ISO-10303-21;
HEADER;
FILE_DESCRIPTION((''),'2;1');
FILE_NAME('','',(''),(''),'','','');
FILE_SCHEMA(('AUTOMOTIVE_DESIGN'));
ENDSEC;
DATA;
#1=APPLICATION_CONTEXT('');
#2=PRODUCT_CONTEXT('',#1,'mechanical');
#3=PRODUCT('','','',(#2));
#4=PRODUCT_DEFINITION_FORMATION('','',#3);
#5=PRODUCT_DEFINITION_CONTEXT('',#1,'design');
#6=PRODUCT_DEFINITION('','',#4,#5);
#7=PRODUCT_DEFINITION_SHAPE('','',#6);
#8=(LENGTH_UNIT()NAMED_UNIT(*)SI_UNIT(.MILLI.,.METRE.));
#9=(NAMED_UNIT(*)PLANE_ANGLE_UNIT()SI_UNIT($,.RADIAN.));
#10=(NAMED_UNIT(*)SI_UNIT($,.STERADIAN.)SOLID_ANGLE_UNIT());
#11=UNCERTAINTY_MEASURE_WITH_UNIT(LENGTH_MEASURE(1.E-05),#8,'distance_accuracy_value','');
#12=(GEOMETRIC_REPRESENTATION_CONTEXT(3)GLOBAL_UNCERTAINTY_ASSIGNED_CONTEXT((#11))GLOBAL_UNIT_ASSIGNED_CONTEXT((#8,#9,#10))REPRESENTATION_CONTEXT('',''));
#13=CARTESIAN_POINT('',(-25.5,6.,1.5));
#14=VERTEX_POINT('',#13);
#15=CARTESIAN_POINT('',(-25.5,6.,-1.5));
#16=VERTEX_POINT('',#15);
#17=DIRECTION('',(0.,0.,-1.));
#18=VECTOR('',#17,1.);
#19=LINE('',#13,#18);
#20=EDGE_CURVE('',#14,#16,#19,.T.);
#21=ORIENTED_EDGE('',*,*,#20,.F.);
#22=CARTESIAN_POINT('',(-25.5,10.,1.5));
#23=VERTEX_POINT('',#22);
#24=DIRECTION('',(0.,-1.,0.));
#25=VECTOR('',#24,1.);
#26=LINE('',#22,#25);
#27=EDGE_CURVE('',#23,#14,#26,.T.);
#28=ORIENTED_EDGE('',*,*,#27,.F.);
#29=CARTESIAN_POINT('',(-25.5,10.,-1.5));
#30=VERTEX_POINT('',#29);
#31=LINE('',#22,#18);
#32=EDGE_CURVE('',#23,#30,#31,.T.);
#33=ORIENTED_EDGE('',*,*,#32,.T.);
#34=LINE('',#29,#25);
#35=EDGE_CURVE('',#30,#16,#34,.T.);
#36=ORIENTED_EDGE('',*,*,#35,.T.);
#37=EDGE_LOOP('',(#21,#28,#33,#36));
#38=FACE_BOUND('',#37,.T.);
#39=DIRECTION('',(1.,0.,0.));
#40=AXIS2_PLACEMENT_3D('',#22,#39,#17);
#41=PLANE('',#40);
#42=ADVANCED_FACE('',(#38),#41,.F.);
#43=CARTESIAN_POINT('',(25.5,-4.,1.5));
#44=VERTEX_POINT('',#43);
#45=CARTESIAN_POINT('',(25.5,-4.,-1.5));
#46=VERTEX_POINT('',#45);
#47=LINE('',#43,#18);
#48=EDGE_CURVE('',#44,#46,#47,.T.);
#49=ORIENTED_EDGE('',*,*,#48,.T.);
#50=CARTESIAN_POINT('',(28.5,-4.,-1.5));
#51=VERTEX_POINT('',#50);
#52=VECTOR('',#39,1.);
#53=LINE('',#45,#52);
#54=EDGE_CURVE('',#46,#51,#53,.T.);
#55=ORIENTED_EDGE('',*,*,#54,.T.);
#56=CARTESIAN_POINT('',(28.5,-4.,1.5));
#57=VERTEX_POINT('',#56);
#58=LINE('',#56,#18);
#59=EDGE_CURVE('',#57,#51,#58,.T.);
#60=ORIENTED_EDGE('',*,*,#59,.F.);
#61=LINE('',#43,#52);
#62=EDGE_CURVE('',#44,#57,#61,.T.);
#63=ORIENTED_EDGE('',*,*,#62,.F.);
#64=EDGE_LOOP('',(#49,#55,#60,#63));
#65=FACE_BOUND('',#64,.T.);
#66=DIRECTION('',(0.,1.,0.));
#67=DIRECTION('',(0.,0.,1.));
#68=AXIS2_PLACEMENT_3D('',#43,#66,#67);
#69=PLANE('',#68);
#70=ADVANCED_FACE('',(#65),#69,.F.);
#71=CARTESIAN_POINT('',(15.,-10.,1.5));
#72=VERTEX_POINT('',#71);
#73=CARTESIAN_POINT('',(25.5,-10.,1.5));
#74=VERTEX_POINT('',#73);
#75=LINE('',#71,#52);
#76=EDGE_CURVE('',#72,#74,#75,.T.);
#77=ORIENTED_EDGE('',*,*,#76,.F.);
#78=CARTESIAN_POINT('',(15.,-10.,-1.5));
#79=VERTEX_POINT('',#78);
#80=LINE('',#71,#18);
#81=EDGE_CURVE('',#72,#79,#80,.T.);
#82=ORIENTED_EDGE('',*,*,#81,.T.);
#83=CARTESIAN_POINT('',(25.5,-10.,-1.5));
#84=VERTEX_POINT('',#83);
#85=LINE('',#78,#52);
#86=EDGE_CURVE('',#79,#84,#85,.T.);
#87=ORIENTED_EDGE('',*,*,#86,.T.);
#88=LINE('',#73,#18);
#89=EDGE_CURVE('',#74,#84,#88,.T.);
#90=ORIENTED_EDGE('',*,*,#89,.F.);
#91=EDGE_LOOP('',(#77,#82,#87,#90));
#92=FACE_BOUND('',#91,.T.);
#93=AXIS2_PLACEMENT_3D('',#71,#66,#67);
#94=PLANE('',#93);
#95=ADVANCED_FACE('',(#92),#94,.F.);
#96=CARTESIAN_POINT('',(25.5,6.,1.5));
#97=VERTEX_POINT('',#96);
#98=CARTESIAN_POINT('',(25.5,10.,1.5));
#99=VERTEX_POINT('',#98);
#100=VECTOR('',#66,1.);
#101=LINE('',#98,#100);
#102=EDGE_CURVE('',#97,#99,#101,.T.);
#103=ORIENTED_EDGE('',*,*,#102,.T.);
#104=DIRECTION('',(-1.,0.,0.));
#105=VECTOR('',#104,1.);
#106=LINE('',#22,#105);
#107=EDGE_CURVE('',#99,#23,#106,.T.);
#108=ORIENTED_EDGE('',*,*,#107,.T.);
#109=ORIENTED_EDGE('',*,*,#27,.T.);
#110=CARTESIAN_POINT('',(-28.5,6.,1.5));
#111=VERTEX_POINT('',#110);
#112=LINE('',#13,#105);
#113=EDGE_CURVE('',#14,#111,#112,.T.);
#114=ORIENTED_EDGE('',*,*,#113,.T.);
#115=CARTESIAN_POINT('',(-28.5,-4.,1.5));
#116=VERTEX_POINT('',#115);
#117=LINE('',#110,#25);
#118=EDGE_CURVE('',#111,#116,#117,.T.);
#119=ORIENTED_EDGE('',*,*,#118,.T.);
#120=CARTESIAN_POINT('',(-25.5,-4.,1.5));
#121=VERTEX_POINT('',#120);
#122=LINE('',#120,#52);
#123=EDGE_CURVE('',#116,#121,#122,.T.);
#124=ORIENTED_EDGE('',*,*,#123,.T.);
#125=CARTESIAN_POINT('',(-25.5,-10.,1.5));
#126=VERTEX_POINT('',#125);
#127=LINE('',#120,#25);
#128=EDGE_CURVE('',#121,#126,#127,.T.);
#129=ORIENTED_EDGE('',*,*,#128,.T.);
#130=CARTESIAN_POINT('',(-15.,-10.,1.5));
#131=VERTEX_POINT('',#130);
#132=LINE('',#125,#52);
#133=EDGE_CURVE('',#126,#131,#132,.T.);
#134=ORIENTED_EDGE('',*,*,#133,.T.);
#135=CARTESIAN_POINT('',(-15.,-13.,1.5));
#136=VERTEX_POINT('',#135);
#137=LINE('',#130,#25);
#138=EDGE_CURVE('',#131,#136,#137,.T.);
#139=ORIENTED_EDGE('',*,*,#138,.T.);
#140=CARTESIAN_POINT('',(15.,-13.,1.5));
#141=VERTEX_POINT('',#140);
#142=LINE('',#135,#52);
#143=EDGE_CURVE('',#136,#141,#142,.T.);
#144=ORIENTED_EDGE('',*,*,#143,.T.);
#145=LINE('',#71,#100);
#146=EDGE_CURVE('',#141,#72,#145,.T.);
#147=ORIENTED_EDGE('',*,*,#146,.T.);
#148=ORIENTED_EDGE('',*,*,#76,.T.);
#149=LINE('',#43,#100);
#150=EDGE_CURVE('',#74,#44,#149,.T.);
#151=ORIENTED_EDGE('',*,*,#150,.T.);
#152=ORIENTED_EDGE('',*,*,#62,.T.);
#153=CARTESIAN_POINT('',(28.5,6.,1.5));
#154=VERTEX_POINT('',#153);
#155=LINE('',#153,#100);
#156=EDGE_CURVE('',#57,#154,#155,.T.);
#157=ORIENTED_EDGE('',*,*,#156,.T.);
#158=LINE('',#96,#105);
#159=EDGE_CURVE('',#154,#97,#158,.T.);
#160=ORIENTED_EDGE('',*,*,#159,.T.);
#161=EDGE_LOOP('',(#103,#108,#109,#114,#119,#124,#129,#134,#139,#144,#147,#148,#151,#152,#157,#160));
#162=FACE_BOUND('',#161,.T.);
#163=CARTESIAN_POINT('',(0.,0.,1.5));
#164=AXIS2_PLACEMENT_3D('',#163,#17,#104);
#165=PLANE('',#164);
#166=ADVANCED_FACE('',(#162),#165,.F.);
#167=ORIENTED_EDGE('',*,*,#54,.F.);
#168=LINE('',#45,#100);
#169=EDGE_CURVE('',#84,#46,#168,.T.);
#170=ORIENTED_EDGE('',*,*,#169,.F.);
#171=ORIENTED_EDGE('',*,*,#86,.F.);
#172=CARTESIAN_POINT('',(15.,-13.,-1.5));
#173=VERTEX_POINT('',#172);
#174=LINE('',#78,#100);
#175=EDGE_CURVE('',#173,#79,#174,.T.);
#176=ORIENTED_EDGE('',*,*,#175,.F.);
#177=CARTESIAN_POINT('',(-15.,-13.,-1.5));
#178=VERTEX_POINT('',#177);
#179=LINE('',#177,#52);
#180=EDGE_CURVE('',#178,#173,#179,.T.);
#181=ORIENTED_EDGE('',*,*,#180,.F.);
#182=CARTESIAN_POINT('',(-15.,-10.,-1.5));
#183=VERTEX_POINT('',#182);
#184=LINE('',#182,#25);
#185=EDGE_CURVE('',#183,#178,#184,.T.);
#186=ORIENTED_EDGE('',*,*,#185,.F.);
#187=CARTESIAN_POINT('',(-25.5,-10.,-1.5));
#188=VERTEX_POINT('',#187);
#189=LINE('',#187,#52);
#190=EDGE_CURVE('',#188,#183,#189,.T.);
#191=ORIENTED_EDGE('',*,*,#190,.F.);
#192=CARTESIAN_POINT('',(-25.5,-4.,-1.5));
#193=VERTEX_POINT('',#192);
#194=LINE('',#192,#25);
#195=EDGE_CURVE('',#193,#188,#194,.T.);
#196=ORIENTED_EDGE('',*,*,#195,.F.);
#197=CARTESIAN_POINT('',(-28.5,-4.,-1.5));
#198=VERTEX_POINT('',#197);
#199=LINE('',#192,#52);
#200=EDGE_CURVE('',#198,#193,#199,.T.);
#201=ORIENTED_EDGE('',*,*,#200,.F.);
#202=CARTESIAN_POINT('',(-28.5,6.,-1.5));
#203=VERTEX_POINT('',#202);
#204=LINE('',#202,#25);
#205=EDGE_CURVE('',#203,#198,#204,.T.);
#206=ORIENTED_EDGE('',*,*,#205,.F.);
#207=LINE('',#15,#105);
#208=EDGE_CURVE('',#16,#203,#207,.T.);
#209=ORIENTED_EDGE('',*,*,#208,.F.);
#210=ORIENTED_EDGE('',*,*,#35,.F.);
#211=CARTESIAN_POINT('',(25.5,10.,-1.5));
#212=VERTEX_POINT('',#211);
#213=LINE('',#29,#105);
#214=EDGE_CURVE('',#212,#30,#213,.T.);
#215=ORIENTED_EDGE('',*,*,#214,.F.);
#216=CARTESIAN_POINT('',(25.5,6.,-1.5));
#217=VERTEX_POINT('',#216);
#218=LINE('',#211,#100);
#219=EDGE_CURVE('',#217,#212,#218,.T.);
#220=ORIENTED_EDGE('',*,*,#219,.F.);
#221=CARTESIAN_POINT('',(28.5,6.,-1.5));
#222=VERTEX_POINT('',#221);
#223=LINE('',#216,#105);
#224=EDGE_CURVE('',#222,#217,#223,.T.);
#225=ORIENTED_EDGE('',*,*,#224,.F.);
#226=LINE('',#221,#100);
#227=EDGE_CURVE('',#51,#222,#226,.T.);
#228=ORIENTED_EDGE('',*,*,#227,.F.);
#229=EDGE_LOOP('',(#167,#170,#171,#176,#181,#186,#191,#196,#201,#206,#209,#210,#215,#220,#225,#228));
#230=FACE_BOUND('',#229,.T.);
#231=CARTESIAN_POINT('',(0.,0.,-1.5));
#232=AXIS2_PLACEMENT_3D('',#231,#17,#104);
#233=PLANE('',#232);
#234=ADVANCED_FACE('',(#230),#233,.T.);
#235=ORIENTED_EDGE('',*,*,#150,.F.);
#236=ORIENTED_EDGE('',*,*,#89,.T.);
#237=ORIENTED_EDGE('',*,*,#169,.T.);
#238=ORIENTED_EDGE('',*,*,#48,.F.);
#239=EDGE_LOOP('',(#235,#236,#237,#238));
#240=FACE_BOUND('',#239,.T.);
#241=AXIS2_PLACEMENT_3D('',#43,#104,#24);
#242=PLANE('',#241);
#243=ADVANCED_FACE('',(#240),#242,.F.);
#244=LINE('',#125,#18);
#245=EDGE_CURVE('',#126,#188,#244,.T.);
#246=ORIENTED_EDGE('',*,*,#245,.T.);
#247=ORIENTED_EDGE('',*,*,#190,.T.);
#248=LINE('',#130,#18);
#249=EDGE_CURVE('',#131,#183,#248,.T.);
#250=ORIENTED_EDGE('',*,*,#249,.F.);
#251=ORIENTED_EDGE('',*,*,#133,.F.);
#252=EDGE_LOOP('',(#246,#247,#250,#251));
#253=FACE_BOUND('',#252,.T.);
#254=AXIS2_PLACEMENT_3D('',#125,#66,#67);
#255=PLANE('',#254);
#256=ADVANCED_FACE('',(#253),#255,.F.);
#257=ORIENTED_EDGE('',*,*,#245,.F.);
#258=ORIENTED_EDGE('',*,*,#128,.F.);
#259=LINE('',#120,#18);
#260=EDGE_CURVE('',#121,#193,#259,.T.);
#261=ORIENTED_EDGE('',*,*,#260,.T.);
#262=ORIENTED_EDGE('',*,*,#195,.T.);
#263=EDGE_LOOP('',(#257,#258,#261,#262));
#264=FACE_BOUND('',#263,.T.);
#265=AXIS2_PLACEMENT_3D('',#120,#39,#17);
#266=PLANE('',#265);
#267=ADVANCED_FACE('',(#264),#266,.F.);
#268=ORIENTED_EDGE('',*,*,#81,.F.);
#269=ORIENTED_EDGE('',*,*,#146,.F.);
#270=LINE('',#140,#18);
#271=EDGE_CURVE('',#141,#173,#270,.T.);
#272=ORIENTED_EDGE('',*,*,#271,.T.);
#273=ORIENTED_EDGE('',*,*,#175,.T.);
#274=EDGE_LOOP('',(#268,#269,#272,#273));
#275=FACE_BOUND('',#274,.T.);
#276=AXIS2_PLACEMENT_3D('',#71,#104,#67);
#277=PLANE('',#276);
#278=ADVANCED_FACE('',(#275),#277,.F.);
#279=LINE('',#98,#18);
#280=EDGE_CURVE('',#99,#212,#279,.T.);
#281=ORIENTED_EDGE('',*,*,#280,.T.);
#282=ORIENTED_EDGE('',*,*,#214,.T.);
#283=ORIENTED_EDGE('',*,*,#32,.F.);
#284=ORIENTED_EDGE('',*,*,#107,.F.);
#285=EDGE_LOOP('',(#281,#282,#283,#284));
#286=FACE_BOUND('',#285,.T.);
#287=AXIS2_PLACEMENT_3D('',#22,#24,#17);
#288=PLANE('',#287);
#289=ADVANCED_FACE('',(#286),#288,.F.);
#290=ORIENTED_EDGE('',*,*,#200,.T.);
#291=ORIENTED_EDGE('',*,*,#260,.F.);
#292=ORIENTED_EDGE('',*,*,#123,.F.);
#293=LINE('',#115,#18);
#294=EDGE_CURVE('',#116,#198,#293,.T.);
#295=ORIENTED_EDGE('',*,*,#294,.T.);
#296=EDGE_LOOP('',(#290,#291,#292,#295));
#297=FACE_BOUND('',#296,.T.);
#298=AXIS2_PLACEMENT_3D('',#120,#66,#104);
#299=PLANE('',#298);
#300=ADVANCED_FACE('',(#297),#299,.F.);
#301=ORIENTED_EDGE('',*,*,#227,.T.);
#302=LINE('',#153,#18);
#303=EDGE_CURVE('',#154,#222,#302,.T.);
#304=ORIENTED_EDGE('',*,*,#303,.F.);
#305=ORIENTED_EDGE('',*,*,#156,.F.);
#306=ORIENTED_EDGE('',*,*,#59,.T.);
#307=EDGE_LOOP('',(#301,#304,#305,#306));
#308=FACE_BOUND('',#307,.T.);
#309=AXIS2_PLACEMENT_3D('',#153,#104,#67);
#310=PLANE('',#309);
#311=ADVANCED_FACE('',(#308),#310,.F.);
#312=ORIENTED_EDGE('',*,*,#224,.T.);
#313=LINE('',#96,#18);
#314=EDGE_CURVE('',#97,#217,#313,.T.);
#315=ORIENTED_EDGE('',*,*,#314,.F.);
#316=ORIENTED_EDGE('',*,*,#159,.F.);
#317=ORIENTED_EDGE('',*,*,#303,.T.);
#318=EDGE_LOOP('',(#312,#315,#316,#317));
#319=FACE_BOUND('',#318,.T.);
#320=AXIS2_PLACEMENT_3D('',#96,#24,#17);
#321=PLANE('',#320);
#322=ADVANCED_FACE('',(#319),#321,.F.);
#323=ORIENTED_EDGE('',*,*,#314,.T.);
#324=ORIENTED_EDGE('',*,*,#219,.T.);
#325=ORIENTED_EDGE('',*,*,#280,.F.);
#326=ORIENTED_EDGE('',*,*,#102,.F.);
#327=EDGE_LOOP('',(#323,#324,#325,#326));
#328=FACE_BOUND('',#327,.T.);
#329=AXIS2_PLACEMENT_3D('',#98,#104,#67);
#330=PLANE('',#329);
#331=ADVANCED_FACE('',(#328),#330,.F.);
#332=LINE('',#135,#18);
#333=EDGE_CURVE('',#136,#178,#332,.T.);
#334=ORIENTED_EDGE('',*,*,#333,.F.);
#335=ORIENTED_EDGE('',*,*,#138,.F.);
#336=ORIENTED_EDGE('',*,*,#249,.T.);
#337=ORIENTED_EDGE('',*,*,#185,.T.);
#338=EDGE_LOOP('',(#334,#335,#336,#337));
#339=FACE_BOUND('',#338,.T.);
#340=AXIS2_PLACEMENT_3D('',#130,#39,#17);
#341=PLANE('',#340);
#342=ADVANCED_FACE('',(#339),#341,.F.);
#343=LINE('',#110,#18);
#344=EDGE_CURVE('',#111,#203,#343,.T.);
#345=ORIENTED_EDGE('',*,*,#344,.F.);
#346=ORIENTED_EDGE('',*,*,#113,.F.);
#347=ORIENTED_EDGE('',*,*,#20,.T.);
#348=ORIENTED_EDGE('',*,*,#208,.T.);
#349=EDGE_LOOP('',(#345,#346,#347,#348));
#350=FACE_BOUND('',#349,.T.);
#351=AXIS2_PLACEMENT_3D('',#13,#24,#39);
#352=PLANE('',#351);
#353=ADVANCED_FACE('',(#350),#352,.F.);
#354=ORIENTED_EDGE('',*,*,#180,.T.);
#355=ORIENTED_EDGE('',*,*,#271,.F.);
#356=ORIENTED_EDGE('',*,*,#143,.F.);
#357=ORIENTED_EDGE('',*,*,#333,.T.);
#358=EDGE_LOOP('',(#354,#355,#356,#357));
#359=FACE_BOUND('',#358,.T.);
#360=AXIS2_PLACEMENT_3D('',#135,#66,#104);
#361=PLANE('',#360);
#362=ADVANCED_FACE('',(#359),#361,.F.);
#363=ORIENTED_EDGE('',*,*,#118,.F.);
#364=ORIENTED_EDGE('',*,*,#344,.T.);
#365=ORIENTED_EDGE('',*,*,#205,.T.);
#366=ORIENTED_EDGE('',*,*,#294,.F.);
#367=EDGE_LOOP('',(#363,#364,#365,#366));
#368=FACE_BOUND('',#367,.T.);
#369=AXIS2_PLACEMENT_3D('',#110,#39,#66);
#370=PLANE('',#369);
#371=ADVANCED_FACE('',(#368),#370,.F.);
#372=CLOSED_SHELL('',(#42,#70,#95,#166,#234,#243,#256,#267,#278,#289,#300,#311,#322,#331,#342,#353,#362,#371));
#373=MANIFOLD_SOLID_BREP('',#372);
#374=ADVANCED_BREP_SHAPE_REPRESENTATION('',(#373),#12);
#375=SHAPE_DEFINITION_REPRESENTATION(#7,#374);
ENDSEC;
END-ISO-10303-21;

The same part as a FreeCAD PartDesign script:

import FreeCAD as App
import Part
import Sketcher
Q = App.Units.Quantity


def add_polygon(sketch, points):
    """Adds a closed chain of lines whose ends are joined by coincident constraints."""
    first, n = sketch.GeometryCount, len(points)
    for a, b in zip(points, points[1:] + points[:1]):
        sketch.addGeometry(Part.LineSegment(App.Vector(*a, 0), App.Vector(*b, 0)), False)
    for i in range(n):
        sketch.addConstraint(Sketcher.Constraint("Coincident", first + i, 2, first + (i + 1) % n, 1))

doc = App.newDocument("Part")
params = doc.addObject("Spreadsheet::Sheet", "Params")
for row, (alias, value) in enumerate([
    ("sketch1_width", "30 mm"),
    ("sketch1_width2", "3 mm"),
    ("sketch1_width3", "51 mm"),
    ("sketch1_height", "6 mm"),
    ("sketch1_height2", "10 mm"),
    ("pad1_length", "3 mm"),
], start=1):
    params.set(f"A{row}", alias)
    params.set(f"B{row}", "=" + value)
    params.setAlias(f"B{row}", alias)

body = doc.addObject("PartDesign::Body", "Body")

sketch1 = body.newObject("Sketcher::SketchObject", "Sketch")
sketch1.AttachmentSupport = (doc.getObject("XY_Plane"), [""])
sketch1.MapMode = "FlatFace"
add_polygon(sketch1, [(-25.5, -4), (-25.5, -10), (-15, -10), (-15, -13), (15, -13), (15, -10), (25.5, -10), (25.5, -4), (28.5, -4), (28.5, 6), (25.5, 6), (25.5, 10), (-25.5, 10), (-25.5, 6), (-28.5, 6), (-28.5, -4)])
sketch1.addConstraint([
    Sketcher.Constraint("Vertical", 0),
    Sketcher.Constraint("Horizontal", 1),
    Sketcher.Constraint("Vertical", 2),
    Sketcher.Constraint("Horizontal", 3),
    Sketcher.Constraint("Vertical", 4),
    Sketcher.Constraint("Horizontal", 5),
    Sketcher.Constraint("Vertical", 6),
    Sketcher.Constraint("Horizontal", 7),
    Sketcher.Constraint("Vertical", 8),
    Sketcher.Constraint("Horizontal", 9),
    Sketcher.Constraint("Vertical", 10),
    Sketcher.Constraint("Horizontal", 11),
    Sketcher.Constraint("Vertical", 12),
    Sketcher.Constraint("Horizontal", 13),
    Sketcher.Constraint("Vertical", 14),
    Sketcher.Constraint("Horizontal", 15),
    Sketcher.Constraint("Symmetric", 0, 2, 10, 2, -1, 1),
    Sketcher.Constraint("Symmetric", 5, 2, 11, 2, -1, 1),
    Sketcher.Constraint("Symmetric", 9, 2, 12, 2, -2),
    Sketcher.Constraint("Symmetric", 7, 2, 14, 2, -2),
    Sketcher.Constraint("Equal", 1, 5),
    Sketcher.Constraint("Equal", 15, 2),
    Sketcher.Constraint("DistanceX", 3, 1, 3, 2, Q("30 mm")),
    Sketcher.Constraint("DistanceX", 7, 1, 7, 2, Q("3 mm")),
    Sketcher.Constraint("DistanceX", 11, 2, 11, 1, Q("51 mm")),
    Sketcher.Constraint("DistanceY", 0, 2, 0, 1, Q("6 mm")),
    Sketcher.Constraint("DistanceY", 8, 1, 8, 2, Q("10 mm")),
    Sketcher.Constraint("DistanceY", 10, 1, 10, 2, Q("4 mm")),
])
sketch1.setExpression("Constraints[38]", "Params.sketch1_width")
sketch1.setExpression("Constraints[39]", "Params.sketch1_width2")
sketch1.setExpression("Constraints[40]", "Params.sketch1_width3")
sketch1.setExpression("Constraints[41]", "Params.sketch1_height")
sketch1.setExpression("Constraints[42]", "Params.sketch1_height2")
pad1 = body.newObject("PartDesign::Pad", "Pad")
pad1.Profile = sketch1
pad1.setExpression("Length", "Params.pad1_length")
pad1.Midplane = True

doc.recompute()
